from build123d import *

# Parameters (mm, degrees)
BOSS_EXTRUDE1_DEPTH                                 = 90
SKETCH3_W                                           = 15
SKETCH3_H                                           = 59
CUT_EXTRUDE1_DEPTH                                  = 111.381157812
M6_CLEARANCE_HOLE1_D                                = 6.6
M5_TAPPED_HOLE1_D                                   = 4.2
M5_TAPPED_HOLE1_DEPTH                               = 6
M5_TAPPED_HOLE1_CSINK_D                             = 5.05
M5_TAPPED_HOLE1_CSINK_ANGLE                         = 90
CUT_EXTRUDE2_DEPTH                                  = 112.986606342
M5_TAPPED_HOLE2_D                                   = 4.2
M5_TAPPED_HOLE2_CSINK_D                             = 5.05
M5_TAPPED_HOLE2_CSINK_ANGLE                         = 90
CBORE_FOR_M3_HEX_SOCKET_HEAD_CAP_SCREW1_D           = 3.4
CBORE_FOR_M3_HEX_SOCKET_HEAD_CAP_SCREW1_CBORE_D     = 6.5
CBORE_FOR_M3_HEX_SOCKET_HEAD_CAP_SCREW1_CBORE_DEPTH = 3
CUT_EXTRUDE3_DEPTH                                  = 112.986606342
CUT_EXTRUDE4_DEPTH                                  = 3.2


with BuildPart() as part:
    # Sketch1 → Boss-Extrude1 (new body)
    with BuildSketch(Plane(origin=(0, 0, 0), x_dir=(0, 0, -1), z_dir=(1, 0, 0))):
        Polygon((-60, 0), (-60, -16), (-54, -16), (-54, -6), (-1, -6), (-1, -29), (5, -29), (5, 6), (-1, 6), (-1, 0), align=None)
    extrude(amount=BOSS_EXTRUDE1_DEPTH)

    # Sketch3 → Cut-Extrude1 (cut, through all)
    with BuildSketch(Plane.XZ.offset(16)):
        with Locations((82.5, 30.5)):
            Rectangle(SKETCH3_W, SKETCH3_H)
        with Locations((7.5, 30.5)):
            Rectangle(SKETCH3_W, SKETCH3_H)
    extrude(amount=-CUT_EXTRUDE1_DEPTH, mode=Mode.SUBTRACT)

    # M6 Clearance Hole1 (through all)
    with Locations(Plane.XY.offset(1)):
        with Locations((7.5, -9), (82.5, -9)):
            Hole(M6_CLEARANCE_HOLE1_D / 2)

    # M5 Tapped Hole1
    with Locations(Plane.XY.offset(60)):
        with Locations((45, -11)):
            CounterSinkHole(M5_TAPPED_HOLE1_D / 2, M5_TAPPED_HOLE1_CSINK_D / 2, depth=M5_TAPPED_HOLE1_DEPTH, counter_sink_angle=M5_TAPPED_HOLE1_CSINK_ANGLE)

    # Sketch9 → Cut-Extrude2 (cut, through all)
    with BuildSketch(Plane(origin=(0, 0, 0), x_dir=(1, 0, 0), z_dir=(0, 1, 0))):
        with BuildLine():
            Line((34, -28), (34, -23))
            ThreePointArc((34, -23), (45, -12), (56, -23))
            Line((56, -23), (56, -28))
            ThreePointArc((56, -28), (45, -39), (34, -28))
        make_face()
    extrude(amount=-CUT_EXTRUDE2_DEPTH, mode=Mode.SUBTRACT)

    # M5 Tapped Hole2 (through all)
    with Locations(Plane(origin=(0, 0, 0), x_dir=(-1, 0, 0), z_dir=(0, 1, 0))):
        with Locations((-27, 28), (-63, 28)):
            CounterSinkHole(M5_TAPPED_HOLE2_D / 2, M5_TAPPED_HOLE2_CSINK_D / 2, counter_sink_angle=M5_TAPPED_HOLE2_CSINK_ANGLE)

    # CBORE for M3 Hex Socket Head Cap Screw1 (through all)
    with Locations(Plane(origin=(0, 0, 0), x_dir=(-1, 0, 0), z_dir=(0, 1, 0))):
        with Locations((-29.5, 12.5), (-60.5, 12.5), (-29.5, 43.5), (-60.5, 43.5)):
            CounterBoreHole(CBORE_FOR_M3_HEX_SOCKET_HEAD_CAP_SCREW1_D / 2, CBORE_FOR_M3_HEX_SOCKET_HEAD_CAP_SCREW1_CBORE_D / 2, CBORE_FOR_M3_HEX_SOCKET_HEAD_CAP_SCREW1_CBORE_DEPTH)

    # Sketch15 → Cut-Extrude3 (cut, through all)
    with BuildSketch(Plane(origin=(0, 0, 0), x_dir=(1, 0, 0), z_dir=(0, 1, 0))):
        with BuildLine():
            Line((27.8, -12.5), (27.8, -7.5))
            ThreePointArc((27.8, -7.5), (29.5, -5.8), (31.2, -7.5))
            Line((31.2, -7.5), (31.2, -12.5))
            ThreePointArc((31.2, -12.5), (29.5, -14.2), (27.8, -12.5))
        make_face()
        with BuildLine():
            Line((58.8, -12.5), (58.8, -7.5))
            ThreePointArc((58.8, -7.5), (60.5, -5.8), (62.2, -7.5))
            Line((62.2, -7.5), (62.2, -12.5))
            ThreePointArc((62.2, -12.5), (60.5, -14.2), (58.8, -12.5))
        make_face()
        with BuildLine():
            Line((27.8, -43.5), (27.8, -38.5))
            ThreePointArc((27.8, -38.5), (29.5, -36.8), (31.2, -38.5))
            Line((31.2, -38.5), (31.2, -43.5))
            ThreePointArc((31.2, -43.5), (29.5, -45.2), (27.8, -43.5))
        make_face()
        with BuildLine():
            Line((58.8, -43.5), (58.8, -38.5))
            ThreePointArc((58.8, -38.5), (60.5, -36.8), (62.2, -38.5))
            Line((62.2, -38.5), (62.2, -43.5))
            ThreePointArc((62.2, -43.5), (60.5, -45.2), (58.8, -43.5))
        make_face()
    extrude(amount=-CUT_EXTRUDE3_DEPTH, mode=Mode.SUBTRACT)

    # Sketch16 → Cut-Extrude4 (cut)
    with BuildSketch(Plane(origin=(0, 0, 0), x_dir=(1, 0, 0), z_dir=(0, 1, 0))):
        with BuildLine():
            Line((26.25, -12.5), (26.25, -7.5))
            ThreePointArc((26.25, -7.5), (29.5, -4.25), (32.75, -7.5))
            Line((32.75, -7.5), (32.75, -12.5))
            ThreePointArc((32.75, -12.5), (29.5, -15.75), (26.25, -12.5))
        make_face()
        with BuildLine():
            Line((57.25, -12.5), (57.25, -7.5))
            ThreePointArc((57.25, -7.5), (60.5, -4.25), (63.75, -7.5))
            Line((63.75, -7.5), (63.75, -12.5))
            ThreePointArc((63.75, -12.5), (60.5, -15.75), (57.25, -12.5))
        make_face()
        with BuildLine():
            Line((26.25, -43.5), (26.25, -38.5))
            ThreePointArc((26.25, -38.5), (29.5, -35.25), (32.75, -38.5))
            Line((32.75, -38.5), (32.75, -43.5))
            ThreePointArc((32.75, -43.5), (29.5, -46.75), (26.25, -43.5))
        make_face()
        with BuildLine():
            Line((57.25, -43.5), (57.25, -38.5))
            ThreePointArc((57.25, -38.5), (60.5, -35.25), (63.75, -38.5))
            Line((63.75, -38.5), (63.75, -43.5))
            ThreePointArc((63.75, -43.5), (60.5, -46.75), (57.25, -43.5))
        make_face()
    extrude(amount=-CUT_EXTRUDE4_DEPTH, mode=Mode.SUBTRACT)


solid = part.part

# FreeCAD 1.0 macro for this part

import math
import FreeCAD as App
import Part
import Sketcher
from FreeCAD import Vector
Q = App.Units.Quantity

doc = App.newDocument("Part")
body = doc.addObject("PartDesign::Body", "Body")

# Sketch on YZ plane
sketch1 = body.newObject("Sketcher::SketchObject", "Sketch")
sketch1.AttachmentSupport = (doc.getObject("YZ_Plane"), [""])
sketch1.MapMode = "FlatFace"
sketch1.addGeometry(Part.LineSegment(Vector(0, 60, 0), Vector(-16, 60, 0)), False)
sketch1.addGeometry(Part.LineSegment(Vector(-16, 60, 0), Vector(-16, 54, 0)), False)
sketch1.addGeometry(Part.LineSegment(Vector(-16, 54, 0), Vector(-6, 54, 0)), False)
sketch1.addGeometry(Part.LineSegment(Vector(-6, 54, 0), Vector(-6, 1, 0)), False)
sketch1.addGeometry(Part.LineSegment(Vector(-6, 1, 0), Vector(-29, 1, 0)), False)
sketch1.addGeometry(Part.LineSegment(Vector(-29, 1, 0), Vector(-29, -5, 0)), False)
sketch1.addGeometry(Part.LineSegment(Vector(-29, -5, 0), Vector(6, -5, 0)), False)
sketch1.addGeometry(Part.LineSegment(Vector(6, -5, 0), Vector(6, 1, 0)), False)
sketch1.addGeometry(Part.LineSegment(Vector(6, 1, 0), Vector(0, 1, 0)), False)
sketch1.addGeometry(Part.LineSegment(Vector(0, 1, 0), Vector(0, 60, 0)), False)
sketch1.addConstraint(Sketcher.Constraint("Coincident", 0, 2, 1, 1))
sketch1.addConstraint(Sketcher.Constraint("Coincident", 1, 2, 2, 1))
sketch1.addConstraint(Sketcher.Constraint("Coincident", 2, 2, 3, 1))
sketch1.addConstraint(Sketcher.Constraint("Coincident", 3, 2, 4, 1))
sketch1.addConstraint(Sketcher.Constraint("Coincident", 4, 2, 5, 1))
sketch1.addConstraint(Sketcher.Constraint("Coincident", 5, 2, 6, 1))
sketch1.addConstraint(Sketcher.Constraint("Coincident", 6, 2, 7, 1))
sketch1.addConstraint(Sketcher.Constraint("Coincident", 7, 2, 8, 1))
sketch1.addConstraint(Sketcher.Constraint("Coincident", 8, 2, 9, 1))
sketch1.addConstraint(Sketcher.Constraint("Coincident", 9, 2, 0, 1))
sketch1.addConstraint(Sketcher.Constraint("Horizontal", 0))
sketch1.addConstraint(Sketcher.Constraint("Vertical", 1))
sketch1.addConstraint(Sketcher.Constraint("Horizontal", 2))
sketch1.addConstraint(Sketcher.Constraint("Vertical", 3))
sketch1.addConstraint(Sketcher.Constraint("Horizontal", 4))
sketch1.addConstraint(Sketcher.Constraint("Vertical", 5))
sketch1.addConstraint(Sketcher.Constraint("Horizontal", 6))
sketch1.addConstraint(Sketcher.Constraint("Vertical", 7))
sketch1.addConstraint(Sketcher.Constraint("Horizontal", 8))
sketch1.addConstraint(Sketcher.Constraint("Vertical", 9))
sketch1.addConstraint(Sketcher.Constraint("Symmetric", 3, 2, 7, 2, -2))
sketch1.addConstraint(Sketcher.Constraint("PointOnObject", 8, 2, -2))
sketch1.addConstraint(Sketcher.Constraint("Equal", 8, 1))
sketch1.addConstraint(Sketcher.Constraint("Equal", 1, 5))
sketch1.addConstraint(Sketcher.Constraint("DistanceX", 0, 2, 0, 1, Q("16 mm")))
sketch1.addConstraint(Sketcher.Constraint("DistanceX", 2, 1, 2, 2, Q("10 mm")))
sketch1.addConstraint(Sketcher.Constraint("DistanceX", 4, 2, 4, 1, Q("23 mm")))
sketch1.addConstraint(Sketcher.Constraint("DistanceY", 3, 2, 3, 1, Q("53 mm")))
sketch1.addConstraint(Sketcher.Constraint("DistanceY", -1, 1, 0, 2, Q("60 mm")))
pad1 = body.newObject("PartDesign::Pad", "Pad")
pad1.Profile = sketch1
pad1.Length = 90

# Sketch on XZ plane
sketch2 = body.newObject("Sketcher::SketchObject", "Sketch001")
sketch2.AttachmentSupport = (doc.getObject("XZ_Plane"), [""])
sketch2.MapMode = "FlatFace"
sketch2.AttachmentOffset = App.Placement(Vector(0, 0, 16), App.Rotation())
sketch2.addGeometry(Part.LineSegment(Vector(75, 60, 0), Vector(75, 1, 0)), False)
sketch2.addGeometry(Part.LineSegment(Vector(75, 1, 0), Vector(90, 1, 0)), False)
sketch2.addGeometry(Part.LineSegment(Vector(90, 1, 0), Vector(90, 60, 0)), False)
sketch2.addGeometry(Part.LineSegment(Vector(90, 60, 0), Vector(75, 60, 0)), False)
sketch2.addGeometry(Part.LineSegment(Vector(0, 60, 0), Vector(0, 1, 0)), False)
sketch2.addGeometry(Part.LineSegment(Vector(0, 1, 0), Vector(15, 1, 0)), False)
sketch2.addGeometry(Part.LineSegment(Vector(15, 1, 0), Vector(15, 60, 0)), False)
sketch2.addGeometry(Part.LineSegment(Vector(15, 60, 0), Vector(0, 60, 0)), False)
sketch2.addConstraint(Sketcher.Constraint("Coincident", 0, 2, 1, 1))
sketch2.addConstraint(Sketcher.Constraint("Coincident", 1, 2, 2, 1))
sketch2.addConstraint(Sketcher.Constraint("Coincident", 2, 2, 3, 1))
sketch2.addConstraint(Sketcher.Constraint("Coincident", 3, 2, 0, 1))
sketch2.addConstraint(Sketcher.Constraint("Coincident", 4, 2, 5, 1))
sketch2.addConstraint(Sketcher.Constraint("Coincident", 5, 2, 6, 1))
sketch2.addConstraint(Sketcher.Constraint("Coincident", 6, 2, 7, 1))
sketch2.addConstraint(Sketcher.Constraint("Coincident", 7, 2, 4, 1))
sketch2.addConstraint(Sketcher.Constraint("Vertical", 0))
sketch2.addConstraint(Sketcher.Constraint("Horizontal", 1))
sketch2.addConstraint(Sketcher.Constraint("Vertical", 2))
sketch2.addConstraint(Sketcher.Constraint("Horizontal", 3))
sketch2.addConstraint(Sketcher.Constraint("Vertical", 4))
sketch2.addConstraint(Sketcher.Constraint("Horizontal", 5))
sketch2.addConstraint(Sketcher.Constraint("Vertical", 6))
sketch2.addConstraint(Sketcher.Constraint("Horizontal", 7))
sketch2.addConstraint(Sketcher.Constraint("PointOnObject", 4, 2, -2))
sketch2.addConstraint(Sketcher.Constraint("Horizontal", 1, 2, 4, 2))
sketch2.addConstraint(Sketcher.Constraint("Horizontal", 3, 2, 6, 2))
sketch2.addConstraint(Sketcher.Constraint("Equal", 3, 5))
sketch2.addConstraint(Sketcher.Constraint("DistanceX", 1, 1, 1, 2, Q("15 mm")))
sketch2.addConstraint(Sketcher.Constraint("DistanceY", 0, 2, 0, 1, Q("59 mm")))
sketch2.addConstraint(Sketcher.Constraint("DistanceX", -1, 1, 0, 2, Q("75 mm")))
sketch2.addConstraint(Sketcher.Constraint("DistanceY", -1, 1, 0, 2, Q("1 mm")))
pocket1 = body.newObject("PartDesign::Pocket", "Pocket")
pocket1.Profile = sketch2
pocket1.Type = "ThroughAll"

# Sketch on XY plane
sketch3 = body.newObject("Sketcher::SketchObject", "Sketch002")
sketch3.AttachmentSupport = (doc.getObject("XY_Plane"), [""])
sketch3.MapMode = "FlatFace"
sketch3.AttachmentOffset = App.Placement(Vector(0, 0, 1), App.Rotation())
sketch3.addGeometry(Part.Circle(Vector(7.5, -9, 0), Vector(0, 0, 1), 3.3), False)
sketch3.addGeometry(Part.Circle(Vector(82.5, -9, 0), Vector(0, 0, 1), 3.3), False)
sketch3.addConstraint(Sketcher.Constraint("Equal", 0, 1))
sketch3.addConstraint(Sketcher.Constraint("Horizontal", 0, 3, 1, 3))
sketch3.addConstraint(Sketcher.Constraint("Diameter", 0, Q("6.6 mm")))
sketch3.addConstraint(Sketcher.Constraint("DistanceY", 0, 3, -1, 1, Q("9 mm")))
sketch3.addConstraint(Sketcher.Constraint("DistanceX", 0, 3, 1, 3, Q("75 mm")))
sketch3.addConstraint(Sketcher.Constraint("DistanceX", -1, 1, 0, 3, Q("7.5 mm")))
doc.recompute()
hole = body.newObject("PartDesign::Hole", "Hole")
hole.Profile = sketch3
hole.ThreadType = "None"
hole.Diameter = 6.6
hole.DepthType = "ThroughAll"

# Sketch on XY plane
sketch4 = body.newObject("Sketcher::SketchObject", "Sketch003")
sketch4.AttachmentSupport = (doc.getObject("XY_Plane"), [""])
sketch4.MapMode = "FlatFace"
sketch4.AttachmentOffset = App.Placement(Vector(0, 0, 60), App.Rotation())
sketch4.addGeometry(Part.Circle(Vector(45, -11, 0), Vector(0, 0, 1), 2.1), False)
sketch4.addConstraint(Sketcher.Constraint("Diameter", 0, Q("4.2 mm")))
sketch4.addConstraint(Sketcher.Constraint("DistanceX", -1, 1, 0, 3, Q("45 mm")))
sketch4.addConstraint(Sketcher.Constraint("DistanceY", 0, 3, -1, 1, Q("11 mm")))
doc.recompute()
hole2 = body.newObject("PartDesign::Hole", "Hole001")
hole2.Profile = sketch4
hole2.ThreadType = "None"
hole2.Diameter = 4.2
hole2.DepthType = "Dimension"
hole2.Depth = 6
hole2.DrillPoint = "Flat"
hole2.HoleCutType = "Countersink"
hole2.HoleCutDiameter = 5.05
hole2.HoleCutCountersinkAngle = 90

# Sketch on XZ plane
sketch5 = body.newObject("Sketcher::SketchObject", "Sketch004")
sketch5.AttachmentSupport = (doc.getObject("XZ_Plane"), [""])
sketch5.MapMode = "FlatFace"
sketch5.addGeometry(Part.LineSegment(Vector(34, 23, 0), Vector(34, 28, 0)), False)
sketch5.addGeometry(Part.ArcOfCircle(Part.Circle(Vector(45, 28, 0), Vector(0, 0, 1), 11), math.radians(0), math.radians(180)), False)
sketch5.addGeometry(Part.LineSegment(Vector(56, 28, 0), Vector(56, 23, 0)), False)
sketch5.addGeometry(Part.ArcOfCircle(Part.Circle(Vector(45, 23, 0), Vector(0, 0, 1), 11), math.radians(180), math.radians(360)), False)
sketch5.addConstraint(Sketcher.Constraint("Tangent", 0, 2, 1, 2))
sketch5.addConstraint(Sketcher.Constraint("Tangent", 1, 1, 2, 1))
sketch5.addConstraint(Sketcher.Constraint("Tangent", 2, 2, 3, 2))
sketch5.addConstraint(Sketcher.Constraint("Tangent", 3, 1, 0, 1))
sketch5.addConstraint(Sketcher.Constraint("Vertical", 0))
sketch5.addConstraint(Sketcher.Constraint("Vertical", 2))
sketch5.addConstraint(Sketcher.Constraint("Radius", 1, Q("11 mm")))
sketch5.addConstraint(Sketcher.Constraint("DistanceY", 0, 1, 0, 2, Q("5 mm")))
sketch5.addConstraint(Sketcher.Constraint("DistanceX", -1, 1, 1, 3, Q("45 mm")))
sketch5.addConstraint(Sketcher.Constraint("DistanceY", -1, 1, 1, 3, Q("28 mm")))
pocket2 = body.newObject("PartDesign::Pocket", "Pocket001")
pocket2.Profile = sketch5
pocket2.Type = "ThroughAll"
pocket2.Reversed = True

# Sketch on XZ plane
sketch6 = body.newObject("Sketcher::SketchObject", "Sketch005")
sketch6.AttachmentSupport = (doc.getObject("XZ_Plane"), [""])
sketch6.MapMode = "FlatFace"
sketch6.addGeometry(Part.Circle(Vector(27, 28, 0), Vector(0, 0, 1), 2.1), False)
sketch6.addGeometry(Part.Circle(Vector(63, 28, 0), Vector(0, 0, 1), 2.1), False)
sketch6.addConstraint(Sketcher.Constraint("Equal", 0, 1))
sketch6.addConstraint(Sketcher.Constraint("Horizontal", 0, 3, 1, 3))
sketch6.addConstraint(Sketcher.Constraint("Diameter", 0, Q("4.2 mm")))
sketch6.addConstraint(Sketcher.Constraint("DistanceX", -1, 1, 0, 3, Q("27 mm")))
sketch6.addConstraint(Sketcher.Constraint("DistanceY", -1, 1, 0, 3, Q("28 mm")))
sketch6.addConstraint(Sketcher.Constraint("DistanceX", -1, 1, 1, 3, Q("63 mm")))
doc.recompute()
hole3 = body.newObject("PartDesign::Hole", "Hole002")
hole3.Profile = sketch6
hole3.ThreadType = "None"
hole3.Diameter = 4.2
hole3.DepthType = "ThroughAll"
hole3.HoleCutType = "Countersink"
hole3.HoleCutDiameter = 5.05
hole3.HoleCutCountersinkAngle = 90
hole3.Reversed = True

# Sketch on XZ plane
sketch7 = body.newObject("Sketcher::SketchObject", "Sketch006")
sketch7.AttachmentSupport = (doc.getObject("XZ_Plane"), [""])
sketch7.MapMode = "FlatFace"
sketch7.addGeometry(Part.Circle(Vector(29.5, 12.5, 0), Vector(0, 0, 1), 1.7), False)
sketch7.addGeometry(Part.Circle(Vector(60.5, 12.5, 0), Vector(0, 0, 1), 1.7), False)
sketch7.addGeometry(Part.Circle(Vector(29.5, 43.5, 0), Vector(0, 0, 1), 1.7), False)
sketch7.addGeometry(Part.Circle(Vector(60.5, 43.5, 0), Vector(0, 0, 1), 1.7), False)
sketch7.addConstraint(Sketcher.Constraint("Equal", 0, 1))
sketch7.addConstraint(Sketcher.Constraint("Equal", 1, 2))
sketch7.addConstraint(Sketcher.Constraint("Equal", 2, 3))
sketch7.addConstraint(Sketcher.Constraint("Horizontal", 0, 3, 1, 3))
sketch7.addConstraint(Sketcher.Constraint("Horizontal", 2, 3, 3, 3))
sketch7.addConstraint(Sketcher.Constraint("Vertical", 0, 3, 2, 3))
sketch7.addConstraint(Sketcher.Constraint("Vertical", 1, 3, 3, 3))
sketch7.addConstraint(Sketcher.Constraint("Diameter", 0, Q("3.4 mm")))
sketch7.addConstraint(Sketcher.Constraint("DistanceX", 0, 3, 1, 3, Q("31 mm")))
sketch7.addConstraint(Sketcher.Constraint("DistanceY", 0, 3, 2, 3, Q("31 mm")))
sketch7.addConstraint(Sketcher.Constraint("DistanceX", -1, 1, 0, 3, Q("29.5 mm")))
sketch7.addConstraint(Sketcher.Constraint("DistanceY", -1, 1, 0, 3, Q("12.5 mm")))
doc.recompute()
hole4 = body.newObject("PartDesign::Hole", "Hole003")
hole4.Profile = sketch7
hole4.ThreadType = "None"
hole4.Diameter = 3.4
hole4.DepthType = "ThroughAll"
hole4.HoleCutType = "Counterbore"
hole4.HoleCutDiameter = 6.5
hole4.HoleCutDepth = 3
hole4.Reversed = True

# Sketch on XZ plane
sketch8 = body.newObject("Sketcher::SketchObject", "Sketch007")
sketch8.AttachmentSupport = (doc.getObject("XZ_Plane"), [""])
sketch8.MapMode = "FlatFace"
sketch8.addGeometry(Part.LineSegment(Vector(27.8, 7.5, 0), Vector(27.8, 12.5, 0)), False)
sketch8.addGeometry(Part.ArcOfCircle(Part.Circle(Vector(29.5, 12.5, 0), Vector(0, 0, 1), 1.7), math.radians(0), math.radians(180)), False)
sketch8.addGeometry(Part.LineSegment(Vector(31.2, 12.5, 0), Vector(31.2, 7.5, 0)), False)
sketch8.addGeometry(Part.ArcOfCircle(Part.Circle(Vector(29.5, 7.5, 0), Vector(0, 0, 1), 1.7), math.radians(180), math.radians(360)), False)
sketch8.addGeometry(Part.LineSegment(Vector(58.8, 7.5, 0), Vector(58.8, 12.5, 0)), False)
sketch8.addGeometry(Part.ArcOfCircle(Part.Circle(Vector(60.5, 12.5, 0), Vector(0, 0, 1), 1.7), math.radians(0), math.radians(180)), False)
sketch8.addGeometry(Part.LineSegment(Vector(62.2, 12.5, 0), Vector(62.2, 7.5, 0)), False)
sketch8.addGeometry(Part.ArcOfCircle(Part.Circle(Vector(60.5, 7.5, 0), Vector(0, 0, 1), 1.7), math.radians(180), math.radians(360)), False)
sketch8.addGeometry(Part.LineSegment(Vector(27.8, 38.5, 0), Vector(27.8, 43.5, 0)), False)
sketch8.addGeometry(Part.ArcOfCircle(Part.Circle(Vector(29.5, 43.5, 0), Vector(0, 0, 1), 1.7), math.radians(0), math.radians(180)), False)
sketch8.addGeometry(Part.LineSegment(Vector(31.2, 43.5, 0), Vector(31.2, 38.5, 0)), False)
sketch8.addGeometry(Part.ArcOfCircle(Part.Circle(Vector(29.5, 38.5, 0), Vector(0, 0, 1), 1.7), math.radians(180), math.radians(360)), False)
sketch8.addGeometry(Part.LineSegment(Vector(58.8, 38.5, 0), Vector(58.8, 43.5, 0)), False)
sketch8.addGeometry(Part.ArcOfCircle(Part.Circle(Vector(60.5, 43.5, 0), Vector(0, 0, 1), 1.7), math.radians(0), math.radians(180)), False)
sketch8.addGeometry(Part.LineSegment(Vector(62.2, 43.5, 0), Vector(62.2, 38.5, 0)), False)
sketch8.addGeometry(Part.ArcOfCircle(Part.Circle(Vector(60.5, 38.5, 0), Vector(0, 0, 1), 1.7), math.radians(180), math.radians(360)), False)
sketch8.addConstraint(Sketcher.Constraint("Tangent", 0, 2, 1, 2))
sketch8.addConstraint(Sketcher.Constraint("Tangent", 1, 1, 2, 1))
sketch8.addConstraint(Sketcher.Constraint("Tangent", 2, 2, 3, 2))
sketch8.addConstraint(Sketcher.Constraint("Tangent", 3, 1, 0, 1))
sketch8.addConstraint(Sketcher.Constraint("Tangent", 4, 2, 5, 2))
sketch8.addConstraint(Sketcher.Constraint("Tangent", 5, 1, 6, 1))
sketch8.addConstraint(Sketcher.Constraint("Tangent", 6, 2, 7, 2))
sketch8.addConstraint(Sketcher.Constraint("Tangent", 7, 1, 4, 1))
sketch8.addConstraint(Sketcher.Constraint("Tangent", 8, 2, 9, 2))
sketch8.addConstraint(Sketcher.Constraint("Tangent", 9, 1, 10, 1))
sketch8.addConstraint(Sketcher.Constraint("Tangent", 10, 2, 11, 2))
sketch8.addConstraint(Sketcher.Constraint("Tangent", 11, 1, 8, 1))
sketch8.addConstraint(Sketcher.Constraint("Tangent", 12, 2, 13, 2))
sketch8.addConstraint(Sketcher.Constraint("Tangent", 13, 1, 14, 1))
sketch8.addConstraint(Sketcher.Constraint("Tangent", 14, 2, 15, 2))
sketch8.addConstraint(Sketcher.Constraint("Tangent", 15, 1, 12, 1))
sketch8.addConstraint(Sketcher.Constraint("Vertical", 0))
sketch8.addConstraint(Sketcher.Constraint("Vertical", 2))
sketch8.addConstraint(Sketcher.Constraint("Vertical", 4))
sketch8.addConstraint(Sketcher.Constraint("Vertical", 6))
sketch8.addConstraint(Sketcher.Constraint("Vertical", 8))
sketch8.addConstraint(Sketcher.Constraint("Vertical", 10))
sketch8.addConstraint(Sketcher.Constraint("Vertical", 12))
sketch8.addConstraint(Sketcher.Constraint("Vertical", 14))
sketch8.addConstraint(Sketcher.Constraint("Equal", 3, 5))
sketch8.addConstraint(Sketcher.Constraint("Equal", 7, 9))
sketch8.addConstraint(Sketcher.Constraint("Equal", 11, 13))
sketch8.addConstraint(Sketcher.Constraint("Horizontal", 1, 3, 5, 3))
sketch8.addConstraint(Sketcher.Constraint("Horizontal", 3, 3, 7, 3))
sketch8.addConstraint(Sketcher.Constraint("Horizontal", 9, 3, 13, 3))
sketch8.addConstraint(Sketcher.Constraint("Horizontal", 11, 3, 15, 3))
sketch8.addConstraint(Sketcher.Constraint("Vertical", 3, 3, 9, 3))
sketch8.addConstraint(Sketcher.Constraint("Vertical", 7, 3, 13, 3))
sketch8.addConstraint(Sketcher.Constraint("Equal", 6, 8))
sketch8.addConstraint(Sketcher.Constraint("Radius", 1, Q("1.7 mm")))
sketch8.addConstraint(Sketcher.Constraint("DistanceY", 0, 1, 0, 2, Q("5 mm")))
sketch8.addConstraint(Sketcher.Constraint("DistanceX", 1, 3, 5, 3, Q("31 mm")))
sketch8.addConstraint(Sketcher.Constraint("DistanceY", 1, 3, 9, 3, Q("31 mm")))
sketch8.addConstraint(Sketcher.Constraint("DistanceX", -1, 1, 1, 3, Q("29.5 mm")))
sketch8.addConstraint(Sketcher.Constraint("DistanceY", -1, 1, 1, 3, Q("12.5 mm")))
pocket3 = body.newObject("PartDesign::Pocket", "Pocket002")
pocket3.Profile = sketch8
pocket3.Type = "ThroughAll"
pocket3.Reversed = True

# Sketch on XZ plane
sketch9 = body.newObject("Sketcher::SketchObject", "Sketch008")
sketch9.AttachmentSupport = (doc.getObject("XZ_Plane"), [""])
sketch9.MapMode = "FlatFace"
sketch9.addGeometry(Part.LineSegment(Vector(26.2, 7.5, 0), Vector(26.2, 12.5, 0)), False)
sketch9.addGeometry(Part.ArcOfCircle(Part.Circle(Vector(29.5, 12.5, 0), Vector(0, 0, 1), 3.2), math.radians(0), math.radians(180)), False)
sketch9.addGeometry(Part.LineSegment(Vector(32.8, 12.5, 0), Vector(32.8, 7.5, 0)), False)
sketch9.addGeometry(Part.ArcOfCircle(Part.Circle(Vector(29.5, 7.5, 0), Vector(0, 0, 1), 3.2), math.radians(180), math.radians(360)), False)
sketch9.addGeometry(Part.LineSegment(Vector(57.2, 7.5, 0), Vector(57.2, 12.5, 0)), False)
sketch9.addGeometry(Part.ArcOfCircle(Part.Circle(Vector(60.5, 12.5, 0), Vector(0, 0, 1), 3.2), math.radians(0), math.radians(180)), False)
sketch9.addGeometry(Part.LineSegment(Vector(63.8, 12.5, 0), Vector(63.8, 7.5, 0)), False)
sketch9.addGeometry(Part.ArcOfCircle(Part.Circle(Vector(60.5, 7.5, 0), Vector(0, 0, 1), 3.2), math.radians(180), math.radians(360)), False)
sketch9.addGeometry(Part.LineSegment(Vector(26.2, 38.5, 0), Vector(26.2, 43.5, 0)), False)
sketch9.addGeometry(Part.ArcOfCircle(Part.Circle(Vector(29.5, 43.5, 0), Vector(0, 0, 1), 3.2), math.radians(0), math.radians(180)), False)
sketch9.addGeometry(Part.LineSegment(Vector(32.8, 43.5, 0), Vector(32.8, 38.5, 0)), False)
sketch9.addGeometry(Part.ArcOfCircle(Part.Circle(Vector(29.5, 38.5, 0), Vector(0, 0, 1), 3.2), math.radians(180), math.radians(360)), False)
sketch9.addGeometry(Part.LineSegment(Vector(57.2, 38.5, 0), Vector(57.2, 43.5, 0)), False)
sketch9.addGeometry(Part.ArcOfCircle(Part.Circle(Vector(60.5, 43.5, 0), Vector(0, 0, 1), 3.2), math.radians(0), math.radians(180)), False)
sketch9.addGeometry(Part.LineSegment(Vector(63.8, 43.5, 0), Vector(63.8, 38.5, 0)), False)
sketch9.addGeometry(Part.ArcOfCircle(Part.Circle(Vector(60.5, 38.5, 0), Vector(0, 0, 1), 3.2), math.radians(180), math.radians(360)), False)
sketch9.addConstraint(Sketcher.Constraint("Tangent", 0, 2, 1, 2))
sketch9.addConstraint(Sketcher.Constraint("Tangent", 1, 1, 2, 1))
sketch9.addConstraint(Sketcher.Constraint("Tangent", 2, 2, 3, 2))
sketch9.addConstraint(Sketcher.Constraint("Tangent", 3, 1, 0, 1))
sketch9.addConstraint(Sketcher.Constraint("Tangent", 4, 2, 5, 2))
sketch9.addConstraint(Sketcher.Constraint("Tangent", 5, 1, 6, 1))
sketch9.addConstraint(Sketcher.Constraint("Tangent", 6, 2, 7, 2))
sketch9.addConstraint(Sketcher.Constraint("Tangent", 7, 1, 4, 1))
sketch9.addConstraint(Sketcher.Constraint("Tangent", 8, 2, 9, 2))
sketch9.addConstraint(Sketcher.Constraint("Tangent", 9, 1, 10, 1))
sketch9.addConstraint(Sketcher.Constraint("Tangent", 10, 2, 11, 2))
sketch9.addConstraint(Sketcher.Constraint("Tangent", 11, 1, 8, 1))
sketch9.addConstraint(Sketcher.Constraint("Tangent", 12, 2, 13, 2))
sketch9.addConstraint(Sketcher.Constraint("Tangent", 13, 1, 14, 1))
sketch9.addConstraint(Sketcher.Constraint("Tangent", 14, 2, 15, 2))
sketch9.addConstraint(Sketcher.Constraint("Tangent", 15, 1, 12, 1))
sketch9.addConstraint(Sketcher.Constraint("Vertical", 0))
sketch9.addConstraint(Sketcher.Constraint("Vertical", 2))
sketch9.addConstraint(Sketcher.Constraint("Vertical", 4))
sketch9.addConstraint(Sketcher.Constraint("Vertical", 6))
sketch9.addConstraint(Sketcher.Constraint("Vertical", 8))
sketch9.addConstraint(Sketcher.Constraint("Vertical", 10))
sketch9.addConstraint(Sketcher.Constraint("Vertical", 12))
sketch9.addConstraint(Sketcher.Constraint("Vertical", 14))
sketch9.addConstraint(Sketcher.Constraint("Equal", 3, 5))
sketch9.addConstraint(Sketcher.Constraint("Equal", 7, 9))
sketch9.addConstraint(Sketcher.Constraint("Equal", 11, 13))
sketch9.addConstraint(Sketcher.Constraint("Horizontal", 1, 3, 5, 3))
sketch9.addConstraint(Sketcher.Constraint("Horizontal", 3, 3, 7, 3))
sketch9.addConstraint(Sketcher.Constraint("Horizontal", 9, 3, 13, 3))
sketch9.addConstraint(Sketcher.Constraint("Horizontal", 11, 3, 15, 3))
sketch9.addConstraint(Sketcher.Constraint("Vertical", 3, 3, 9, 3))
sketch9.addConstraint(Sketcher.Constraint("Vertical", 7, 3, 13, 3))
sketch9.addConstraint(Sketcher.Constraint("Equal", 6, 8))
sketch9.addConstraint(Sketcher.Constraint("DistanceY", 0, 1, 0, 2, Q("5 mm")))
sketch9.addConstraint(Sketcher.Constraint("Radius", 1, Q("3.25 mm")))
sketch9.addConstraint(Sketcher.Constraint("DistanceX", 1, 3, 5, 3, Q("31 mm")))
sketch9.addConstraint(Sketcher.Constraint("DistanceY", 1, 3, 9, 3, Q("31 mm")))
sketch9.addConstraint(Sketcher.Constraint("DistanceX", -1, 1, 1, 3, Q("29.5 mm")))
sketch9.addConstraint(Sketcher.Constraint("DistanceY", -1, 1, 1, 3, Q("12.5 mm")))
pocket4 = body.newObject("PartDesign::Pocket", "Pocket003")
pocket4.Profile = sketch9
pocket4.Length = 3.2
pocket4.Reversed = True

doc.recompute()
